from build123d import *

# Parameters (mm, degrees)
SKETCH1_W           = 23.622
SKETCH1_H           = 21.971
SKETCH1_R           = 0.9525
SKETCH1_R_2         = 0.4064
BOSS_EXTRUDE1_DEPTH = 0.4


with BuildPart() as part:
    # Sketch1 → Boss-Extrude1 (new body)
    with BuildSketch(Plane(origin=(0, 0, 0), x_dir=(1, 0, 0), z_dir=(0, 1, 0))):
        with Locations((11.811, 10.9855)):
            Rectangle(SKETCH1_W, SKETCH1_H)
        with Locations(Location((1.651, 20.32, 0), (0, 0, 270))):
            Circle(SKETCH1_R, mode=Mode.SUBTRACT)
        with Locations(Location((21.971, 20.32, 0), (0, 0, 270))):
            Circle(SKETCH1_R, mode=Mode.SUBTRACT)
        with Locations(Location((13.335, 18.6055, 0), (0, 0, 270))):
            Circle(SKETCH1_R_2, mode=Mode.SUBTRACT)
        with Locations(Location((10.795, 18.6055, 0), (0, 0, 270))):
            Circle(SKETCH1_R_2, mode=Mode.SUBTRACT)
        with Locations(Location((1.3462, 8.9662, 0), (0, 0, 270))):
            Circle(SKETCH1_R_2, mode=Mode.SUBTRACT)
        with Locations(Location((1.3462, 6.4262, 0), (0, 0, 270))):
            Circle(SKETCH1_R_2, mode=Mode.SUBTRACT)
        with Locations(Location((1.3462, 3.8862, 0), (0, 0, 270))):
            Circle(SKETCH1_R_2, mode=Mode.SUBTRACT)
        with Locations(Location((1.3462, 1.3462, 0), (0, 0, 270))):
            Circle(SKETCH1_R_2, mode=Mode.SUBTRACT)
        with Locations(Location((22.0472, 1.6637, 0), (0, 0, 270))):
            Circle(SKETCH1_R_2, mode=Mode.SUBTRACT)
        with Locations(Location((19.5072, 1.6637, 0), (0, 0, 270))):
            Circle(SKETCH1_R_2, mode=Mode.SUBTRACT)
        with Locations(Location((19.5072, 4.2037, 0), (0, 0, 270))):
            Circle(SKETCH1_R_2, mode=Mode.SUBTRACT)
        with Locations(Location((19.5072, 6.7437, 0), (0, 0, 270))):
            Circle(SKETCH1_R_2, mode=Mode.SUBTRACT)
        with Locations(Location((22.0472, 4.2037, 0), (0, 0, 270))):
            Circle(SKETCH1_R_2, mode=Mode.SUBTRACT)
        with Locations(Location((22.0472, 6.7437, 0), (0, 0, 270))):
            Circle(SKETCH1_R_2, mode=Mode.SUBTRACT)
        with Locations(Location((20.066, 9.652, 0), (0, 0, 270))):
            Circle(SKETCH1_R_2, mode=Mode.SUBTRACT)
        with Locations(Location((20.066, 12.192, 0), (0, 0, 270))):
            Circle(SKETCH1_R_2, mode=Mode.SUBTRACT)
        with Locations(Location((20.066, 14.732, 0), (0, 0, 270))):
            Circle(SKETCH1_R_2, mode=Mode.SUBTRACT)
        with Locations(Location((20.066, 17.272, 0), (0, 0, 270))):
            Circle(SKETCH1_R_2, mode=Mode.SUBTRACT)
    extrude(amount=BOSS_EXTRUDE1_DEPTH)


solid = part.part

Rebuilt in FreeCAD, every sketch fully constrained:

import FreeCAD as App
import Part
import Sketcher

V = App.Vector
Q = App.Units.Quantity

doc = App.newDocument("Part")
body = doc.addObject("PartDesign::Body", "Body")

sketch1 = body.newObject("Sketcher::SketchObject", "Sketch")
sketch1.AttachmentSupport = (doc.getObject("XZ_Plane"), [""])
sketch1.MapMode = "FlatFace"
sketch1.addGeometry([
    Part.LineSegment(V(0, -21.971, 0), V(0, 0, 0)),
    Part.LineSegment(V(0, 0, 0), V(23.622, 0, 0)),
    Part.LineSegment(V(23.622, 0, 0), V(23.622, -21.971, 0)),
    Part.LineSegment(V(23.622, -21.971, 0), V(0, -21.971, 0)),
    Part.Circle(V(1.3462, -1.3462, 0), V(0, 0, 1), 0.4064),
    Part.Circle(V(1.3462, -3.8862, 0), V(0, 0, 1), 0.4064),
    Part.Circle(V(1.3462, -6.4262, 0), V(0, 0, 1), 0.4064),
    Part.Circle(V(1.3462, -8.9662, 0), V(0, 0, 1), 0.4064),
    Part.Circle(V(19.5072, -1.6637, 0), V(0, 0, 1), 0.4064),
    Part.Circle(V(22.0472, -1.6637, 0), V(0, 0, 1), 0.4064),
    Part.Circle(V(19.5072, -4.2037, 0), V(0, 0, 1), 0.4064),
    Part.Circle(V(22.0472, -4.2037, 0), V(0, 0, 1), 0.4064),
    Part.Circle(V(19.5072, -6.7437, 0), V(0, 0, 1), 0.4064),
    Part.Circle(V(22.0472, -6.7437, 0), V(0, 0, 1), 0.4064),
    Part.Circle(V(20.066, -9.652, 0), V(0, 0, 1), 0.4064),
    Part.Circle(V(1.651, -20.32, 0), V(0, 0, 1), 0.9525),
    Part.Circle(V(10.795, -18.6055, 0), V(0, 0, 1), 0.4064),
    Part.Circle(V(20.066, -12.192, 0), V(0, 0, 1), 0.4064),
    Part.Circle(V(20.066, -14.732, 0), V(0, 0, 1), 0.4064),
    Part.Circle(V(13.335, -18.6055, 0), V(0, 0, 1), 0.4064),
    Part.Circle(V(20.066, -17.272, 0), V(0, 0, 1), 0.4064),
    Part.Circle(V(21.971, -20.32, 0), V(0, 0, 1), 0.9525),
], False)
sketch1.addConstraint([
    Sketcher.Constraint("Coincident", 0, 2, 1, 1),
    Sketcher.Constraint("Coincident", 1, 2, 2, 1),
    Sketcher.Constraint("Coincident", 2, 2, 3, 1),
    Sketcher.Constraint("Coincident", 3, 2, 0, 1),
    Sketcher.Constraint("Vertical", 0),
    Sketcher.Constraint("Horizontal", 1),
    Sketcher.Constraint("Vertical", 2),
    Sketcher.Constraint("Horizontal", 3),
    Sketcher.Constraint("Coincident", 0, 2, -1, 1),
    Sketcher.Constraint("Equal", 4, 5),
    Sketcher.Constraint("Equal", 5, 6),
    Sketcher.Constraint("Equal", 6, 7),
    Sketcher.Constraint("Equal", 7, 8),
    Sketcher.Constraint("Equal", 8, 9),
    Sketcher.Constraint("Equal", 9, 10),
    Sketcher.Constraint("Equal", 10, 11),
    Sketcher.Constraint("Equal", 11, 12),
    Sketcher.Constraint("Equal", 12, 13),
    Sketcher.Constraint("Equal", 13, 14),
    Sketcher.Constraint("Equal", 14, 16),
    Sketcher.Constraint("Equal", 16, 17),
    Sketcher.Constraint("Equal", 17, 18),
    Sketcher.Constraint("Equal", 18, 19),
    Sketcher.Constraint("Equal", 19, 20),
    Sketcher.Constraint("Equal", 15, 21),
    Sketcher.Constraint("Horizontal", 8, 3, 9, 3),
    Sketcher.Constraint("Horizontal", 10, 3, 11, 3),
    Sketcher.Constraint("Horizontal", 12, 3, 13, 3),
    Sketcher.Constraint("Horizontal", 16, 3, 19, 3),
    Sketcher.Constraint("Horizontal", 15, 3, 21, 3),
    Sketcher.Constraint("Vertical", 4, 3, 5, 3),
    Sketcher.Constraint("Vertical", 5, 3, 6, 3),
    Sketcher.Constraint("Vertical", 6, 3, 7, 3),
    Sketcher.Constraint("Vertical", 8, 3, 10, 3),
    Sketcher.Constraint("Vertical", 9, 3, 11, 3),
    Sketcher.Constraint("Vertical", 10, 3, 12, 3),
    Sketcher.Constraint("Vertical", 11, 3, 13, 3),
    Sketcher.Constraint("Vertical", 14, 3, 17, 3),
    Sketcher.Constraint("Vertical", 17, 3, 18, 3),
    Sketcher.Constraint("Vertical", 18, 3, 20, 3),
    Sketcher.Constraint("Diameter", 4, Q("0.032 in")),
    Sketcher.Constraint("Diameter", 15, Q("0.075 in")),
    Sketcher.Constraint("DistanceX", 1, 1, 1, 2, Q("0.93 in")),
    Sketcher.Constraint("DistanceY", 15, 3, -1, 1, Q("0.8 in")),
    Sketcher.Constraint("DistanceY", 5, 3, 4, 3, Q("0.1 in")),
    Sketcher.Constraint("DistanceY", 6, 3, 5, 3, Q("0.1 in")),
    Sketcher.Constraint("DistanceY", 7, 3, 6, 3, Q("0.1 in")),
    Sketcher.Constraint("DistanceX", 8, 3, 9, 3, Q("0.1 in")),
    Sketcher.Constraint("DistanceY", 10, 3, 8, 3, Q("0.1 in")),
    Sketcher.Constraint("DistanceY", 12, 3, 10, 3, Q("0.1 in")),
    Sketcher.Constraint("DistanceY", 17, 3, 14, 3, Q("0.1 in")),
    Sketcher.Constraint("DistanceY", 18, 3, 17, 3, Q("0.1 in")),
    Sketcher.Constraint("DistanceX", 16, 3, 19, 3, Q("0.1 in")),
    Sketcher.Constraint("DistanceY", 20, 3, 18, 3, Q("0.1 in")),
    Sketcher.Constraint("DistanceY", 0, 1, 0, 2, Q("0.865 in")),
    Sketcher.Constraint("DistanceX", -1, 1, 14, 3, Q("0.79 in")),
    Sketcher.Constraint("DistanceY", 14, 3, -1, 1, Q("0.38 in")),
    Sketcher.Constraint("DistanceX", 15, 3, 16, 3, Q("0.36 in")),
    Sketcher.Constraint("DistanceX", 19, 3, 21, 3, Q("0.34 in")),
    Sketcher.Constraint("DistanceX", -1, 1, 4, 3, Q("0.053 in")),
    Sketcher.Constraint("DistanceY", 4, 3, -1, 1, Q("0.053 in")),
    Sketcher.Constraint("DistanceX", -1, 1, 8, 3, Q("0.768 in")),
    Sketcher.Constraint("DistanceX", -1, 1, 15, 3, Q("0.065 in")),
    Sketcher.Constraint("DistanceY", 6, 3, 8, 3, Q("0.1875 in")),
    Sketcher.Constraint("DistanceY", 16, 3, 12, 3, Q("0.467 in")),
])
pad1 = body.newObject("PartDesign::Pad", "Pad")
pad1.Profile = sketch1
pad1.Length = 0.4
pad1.Reversed = True

doc.recompute()
